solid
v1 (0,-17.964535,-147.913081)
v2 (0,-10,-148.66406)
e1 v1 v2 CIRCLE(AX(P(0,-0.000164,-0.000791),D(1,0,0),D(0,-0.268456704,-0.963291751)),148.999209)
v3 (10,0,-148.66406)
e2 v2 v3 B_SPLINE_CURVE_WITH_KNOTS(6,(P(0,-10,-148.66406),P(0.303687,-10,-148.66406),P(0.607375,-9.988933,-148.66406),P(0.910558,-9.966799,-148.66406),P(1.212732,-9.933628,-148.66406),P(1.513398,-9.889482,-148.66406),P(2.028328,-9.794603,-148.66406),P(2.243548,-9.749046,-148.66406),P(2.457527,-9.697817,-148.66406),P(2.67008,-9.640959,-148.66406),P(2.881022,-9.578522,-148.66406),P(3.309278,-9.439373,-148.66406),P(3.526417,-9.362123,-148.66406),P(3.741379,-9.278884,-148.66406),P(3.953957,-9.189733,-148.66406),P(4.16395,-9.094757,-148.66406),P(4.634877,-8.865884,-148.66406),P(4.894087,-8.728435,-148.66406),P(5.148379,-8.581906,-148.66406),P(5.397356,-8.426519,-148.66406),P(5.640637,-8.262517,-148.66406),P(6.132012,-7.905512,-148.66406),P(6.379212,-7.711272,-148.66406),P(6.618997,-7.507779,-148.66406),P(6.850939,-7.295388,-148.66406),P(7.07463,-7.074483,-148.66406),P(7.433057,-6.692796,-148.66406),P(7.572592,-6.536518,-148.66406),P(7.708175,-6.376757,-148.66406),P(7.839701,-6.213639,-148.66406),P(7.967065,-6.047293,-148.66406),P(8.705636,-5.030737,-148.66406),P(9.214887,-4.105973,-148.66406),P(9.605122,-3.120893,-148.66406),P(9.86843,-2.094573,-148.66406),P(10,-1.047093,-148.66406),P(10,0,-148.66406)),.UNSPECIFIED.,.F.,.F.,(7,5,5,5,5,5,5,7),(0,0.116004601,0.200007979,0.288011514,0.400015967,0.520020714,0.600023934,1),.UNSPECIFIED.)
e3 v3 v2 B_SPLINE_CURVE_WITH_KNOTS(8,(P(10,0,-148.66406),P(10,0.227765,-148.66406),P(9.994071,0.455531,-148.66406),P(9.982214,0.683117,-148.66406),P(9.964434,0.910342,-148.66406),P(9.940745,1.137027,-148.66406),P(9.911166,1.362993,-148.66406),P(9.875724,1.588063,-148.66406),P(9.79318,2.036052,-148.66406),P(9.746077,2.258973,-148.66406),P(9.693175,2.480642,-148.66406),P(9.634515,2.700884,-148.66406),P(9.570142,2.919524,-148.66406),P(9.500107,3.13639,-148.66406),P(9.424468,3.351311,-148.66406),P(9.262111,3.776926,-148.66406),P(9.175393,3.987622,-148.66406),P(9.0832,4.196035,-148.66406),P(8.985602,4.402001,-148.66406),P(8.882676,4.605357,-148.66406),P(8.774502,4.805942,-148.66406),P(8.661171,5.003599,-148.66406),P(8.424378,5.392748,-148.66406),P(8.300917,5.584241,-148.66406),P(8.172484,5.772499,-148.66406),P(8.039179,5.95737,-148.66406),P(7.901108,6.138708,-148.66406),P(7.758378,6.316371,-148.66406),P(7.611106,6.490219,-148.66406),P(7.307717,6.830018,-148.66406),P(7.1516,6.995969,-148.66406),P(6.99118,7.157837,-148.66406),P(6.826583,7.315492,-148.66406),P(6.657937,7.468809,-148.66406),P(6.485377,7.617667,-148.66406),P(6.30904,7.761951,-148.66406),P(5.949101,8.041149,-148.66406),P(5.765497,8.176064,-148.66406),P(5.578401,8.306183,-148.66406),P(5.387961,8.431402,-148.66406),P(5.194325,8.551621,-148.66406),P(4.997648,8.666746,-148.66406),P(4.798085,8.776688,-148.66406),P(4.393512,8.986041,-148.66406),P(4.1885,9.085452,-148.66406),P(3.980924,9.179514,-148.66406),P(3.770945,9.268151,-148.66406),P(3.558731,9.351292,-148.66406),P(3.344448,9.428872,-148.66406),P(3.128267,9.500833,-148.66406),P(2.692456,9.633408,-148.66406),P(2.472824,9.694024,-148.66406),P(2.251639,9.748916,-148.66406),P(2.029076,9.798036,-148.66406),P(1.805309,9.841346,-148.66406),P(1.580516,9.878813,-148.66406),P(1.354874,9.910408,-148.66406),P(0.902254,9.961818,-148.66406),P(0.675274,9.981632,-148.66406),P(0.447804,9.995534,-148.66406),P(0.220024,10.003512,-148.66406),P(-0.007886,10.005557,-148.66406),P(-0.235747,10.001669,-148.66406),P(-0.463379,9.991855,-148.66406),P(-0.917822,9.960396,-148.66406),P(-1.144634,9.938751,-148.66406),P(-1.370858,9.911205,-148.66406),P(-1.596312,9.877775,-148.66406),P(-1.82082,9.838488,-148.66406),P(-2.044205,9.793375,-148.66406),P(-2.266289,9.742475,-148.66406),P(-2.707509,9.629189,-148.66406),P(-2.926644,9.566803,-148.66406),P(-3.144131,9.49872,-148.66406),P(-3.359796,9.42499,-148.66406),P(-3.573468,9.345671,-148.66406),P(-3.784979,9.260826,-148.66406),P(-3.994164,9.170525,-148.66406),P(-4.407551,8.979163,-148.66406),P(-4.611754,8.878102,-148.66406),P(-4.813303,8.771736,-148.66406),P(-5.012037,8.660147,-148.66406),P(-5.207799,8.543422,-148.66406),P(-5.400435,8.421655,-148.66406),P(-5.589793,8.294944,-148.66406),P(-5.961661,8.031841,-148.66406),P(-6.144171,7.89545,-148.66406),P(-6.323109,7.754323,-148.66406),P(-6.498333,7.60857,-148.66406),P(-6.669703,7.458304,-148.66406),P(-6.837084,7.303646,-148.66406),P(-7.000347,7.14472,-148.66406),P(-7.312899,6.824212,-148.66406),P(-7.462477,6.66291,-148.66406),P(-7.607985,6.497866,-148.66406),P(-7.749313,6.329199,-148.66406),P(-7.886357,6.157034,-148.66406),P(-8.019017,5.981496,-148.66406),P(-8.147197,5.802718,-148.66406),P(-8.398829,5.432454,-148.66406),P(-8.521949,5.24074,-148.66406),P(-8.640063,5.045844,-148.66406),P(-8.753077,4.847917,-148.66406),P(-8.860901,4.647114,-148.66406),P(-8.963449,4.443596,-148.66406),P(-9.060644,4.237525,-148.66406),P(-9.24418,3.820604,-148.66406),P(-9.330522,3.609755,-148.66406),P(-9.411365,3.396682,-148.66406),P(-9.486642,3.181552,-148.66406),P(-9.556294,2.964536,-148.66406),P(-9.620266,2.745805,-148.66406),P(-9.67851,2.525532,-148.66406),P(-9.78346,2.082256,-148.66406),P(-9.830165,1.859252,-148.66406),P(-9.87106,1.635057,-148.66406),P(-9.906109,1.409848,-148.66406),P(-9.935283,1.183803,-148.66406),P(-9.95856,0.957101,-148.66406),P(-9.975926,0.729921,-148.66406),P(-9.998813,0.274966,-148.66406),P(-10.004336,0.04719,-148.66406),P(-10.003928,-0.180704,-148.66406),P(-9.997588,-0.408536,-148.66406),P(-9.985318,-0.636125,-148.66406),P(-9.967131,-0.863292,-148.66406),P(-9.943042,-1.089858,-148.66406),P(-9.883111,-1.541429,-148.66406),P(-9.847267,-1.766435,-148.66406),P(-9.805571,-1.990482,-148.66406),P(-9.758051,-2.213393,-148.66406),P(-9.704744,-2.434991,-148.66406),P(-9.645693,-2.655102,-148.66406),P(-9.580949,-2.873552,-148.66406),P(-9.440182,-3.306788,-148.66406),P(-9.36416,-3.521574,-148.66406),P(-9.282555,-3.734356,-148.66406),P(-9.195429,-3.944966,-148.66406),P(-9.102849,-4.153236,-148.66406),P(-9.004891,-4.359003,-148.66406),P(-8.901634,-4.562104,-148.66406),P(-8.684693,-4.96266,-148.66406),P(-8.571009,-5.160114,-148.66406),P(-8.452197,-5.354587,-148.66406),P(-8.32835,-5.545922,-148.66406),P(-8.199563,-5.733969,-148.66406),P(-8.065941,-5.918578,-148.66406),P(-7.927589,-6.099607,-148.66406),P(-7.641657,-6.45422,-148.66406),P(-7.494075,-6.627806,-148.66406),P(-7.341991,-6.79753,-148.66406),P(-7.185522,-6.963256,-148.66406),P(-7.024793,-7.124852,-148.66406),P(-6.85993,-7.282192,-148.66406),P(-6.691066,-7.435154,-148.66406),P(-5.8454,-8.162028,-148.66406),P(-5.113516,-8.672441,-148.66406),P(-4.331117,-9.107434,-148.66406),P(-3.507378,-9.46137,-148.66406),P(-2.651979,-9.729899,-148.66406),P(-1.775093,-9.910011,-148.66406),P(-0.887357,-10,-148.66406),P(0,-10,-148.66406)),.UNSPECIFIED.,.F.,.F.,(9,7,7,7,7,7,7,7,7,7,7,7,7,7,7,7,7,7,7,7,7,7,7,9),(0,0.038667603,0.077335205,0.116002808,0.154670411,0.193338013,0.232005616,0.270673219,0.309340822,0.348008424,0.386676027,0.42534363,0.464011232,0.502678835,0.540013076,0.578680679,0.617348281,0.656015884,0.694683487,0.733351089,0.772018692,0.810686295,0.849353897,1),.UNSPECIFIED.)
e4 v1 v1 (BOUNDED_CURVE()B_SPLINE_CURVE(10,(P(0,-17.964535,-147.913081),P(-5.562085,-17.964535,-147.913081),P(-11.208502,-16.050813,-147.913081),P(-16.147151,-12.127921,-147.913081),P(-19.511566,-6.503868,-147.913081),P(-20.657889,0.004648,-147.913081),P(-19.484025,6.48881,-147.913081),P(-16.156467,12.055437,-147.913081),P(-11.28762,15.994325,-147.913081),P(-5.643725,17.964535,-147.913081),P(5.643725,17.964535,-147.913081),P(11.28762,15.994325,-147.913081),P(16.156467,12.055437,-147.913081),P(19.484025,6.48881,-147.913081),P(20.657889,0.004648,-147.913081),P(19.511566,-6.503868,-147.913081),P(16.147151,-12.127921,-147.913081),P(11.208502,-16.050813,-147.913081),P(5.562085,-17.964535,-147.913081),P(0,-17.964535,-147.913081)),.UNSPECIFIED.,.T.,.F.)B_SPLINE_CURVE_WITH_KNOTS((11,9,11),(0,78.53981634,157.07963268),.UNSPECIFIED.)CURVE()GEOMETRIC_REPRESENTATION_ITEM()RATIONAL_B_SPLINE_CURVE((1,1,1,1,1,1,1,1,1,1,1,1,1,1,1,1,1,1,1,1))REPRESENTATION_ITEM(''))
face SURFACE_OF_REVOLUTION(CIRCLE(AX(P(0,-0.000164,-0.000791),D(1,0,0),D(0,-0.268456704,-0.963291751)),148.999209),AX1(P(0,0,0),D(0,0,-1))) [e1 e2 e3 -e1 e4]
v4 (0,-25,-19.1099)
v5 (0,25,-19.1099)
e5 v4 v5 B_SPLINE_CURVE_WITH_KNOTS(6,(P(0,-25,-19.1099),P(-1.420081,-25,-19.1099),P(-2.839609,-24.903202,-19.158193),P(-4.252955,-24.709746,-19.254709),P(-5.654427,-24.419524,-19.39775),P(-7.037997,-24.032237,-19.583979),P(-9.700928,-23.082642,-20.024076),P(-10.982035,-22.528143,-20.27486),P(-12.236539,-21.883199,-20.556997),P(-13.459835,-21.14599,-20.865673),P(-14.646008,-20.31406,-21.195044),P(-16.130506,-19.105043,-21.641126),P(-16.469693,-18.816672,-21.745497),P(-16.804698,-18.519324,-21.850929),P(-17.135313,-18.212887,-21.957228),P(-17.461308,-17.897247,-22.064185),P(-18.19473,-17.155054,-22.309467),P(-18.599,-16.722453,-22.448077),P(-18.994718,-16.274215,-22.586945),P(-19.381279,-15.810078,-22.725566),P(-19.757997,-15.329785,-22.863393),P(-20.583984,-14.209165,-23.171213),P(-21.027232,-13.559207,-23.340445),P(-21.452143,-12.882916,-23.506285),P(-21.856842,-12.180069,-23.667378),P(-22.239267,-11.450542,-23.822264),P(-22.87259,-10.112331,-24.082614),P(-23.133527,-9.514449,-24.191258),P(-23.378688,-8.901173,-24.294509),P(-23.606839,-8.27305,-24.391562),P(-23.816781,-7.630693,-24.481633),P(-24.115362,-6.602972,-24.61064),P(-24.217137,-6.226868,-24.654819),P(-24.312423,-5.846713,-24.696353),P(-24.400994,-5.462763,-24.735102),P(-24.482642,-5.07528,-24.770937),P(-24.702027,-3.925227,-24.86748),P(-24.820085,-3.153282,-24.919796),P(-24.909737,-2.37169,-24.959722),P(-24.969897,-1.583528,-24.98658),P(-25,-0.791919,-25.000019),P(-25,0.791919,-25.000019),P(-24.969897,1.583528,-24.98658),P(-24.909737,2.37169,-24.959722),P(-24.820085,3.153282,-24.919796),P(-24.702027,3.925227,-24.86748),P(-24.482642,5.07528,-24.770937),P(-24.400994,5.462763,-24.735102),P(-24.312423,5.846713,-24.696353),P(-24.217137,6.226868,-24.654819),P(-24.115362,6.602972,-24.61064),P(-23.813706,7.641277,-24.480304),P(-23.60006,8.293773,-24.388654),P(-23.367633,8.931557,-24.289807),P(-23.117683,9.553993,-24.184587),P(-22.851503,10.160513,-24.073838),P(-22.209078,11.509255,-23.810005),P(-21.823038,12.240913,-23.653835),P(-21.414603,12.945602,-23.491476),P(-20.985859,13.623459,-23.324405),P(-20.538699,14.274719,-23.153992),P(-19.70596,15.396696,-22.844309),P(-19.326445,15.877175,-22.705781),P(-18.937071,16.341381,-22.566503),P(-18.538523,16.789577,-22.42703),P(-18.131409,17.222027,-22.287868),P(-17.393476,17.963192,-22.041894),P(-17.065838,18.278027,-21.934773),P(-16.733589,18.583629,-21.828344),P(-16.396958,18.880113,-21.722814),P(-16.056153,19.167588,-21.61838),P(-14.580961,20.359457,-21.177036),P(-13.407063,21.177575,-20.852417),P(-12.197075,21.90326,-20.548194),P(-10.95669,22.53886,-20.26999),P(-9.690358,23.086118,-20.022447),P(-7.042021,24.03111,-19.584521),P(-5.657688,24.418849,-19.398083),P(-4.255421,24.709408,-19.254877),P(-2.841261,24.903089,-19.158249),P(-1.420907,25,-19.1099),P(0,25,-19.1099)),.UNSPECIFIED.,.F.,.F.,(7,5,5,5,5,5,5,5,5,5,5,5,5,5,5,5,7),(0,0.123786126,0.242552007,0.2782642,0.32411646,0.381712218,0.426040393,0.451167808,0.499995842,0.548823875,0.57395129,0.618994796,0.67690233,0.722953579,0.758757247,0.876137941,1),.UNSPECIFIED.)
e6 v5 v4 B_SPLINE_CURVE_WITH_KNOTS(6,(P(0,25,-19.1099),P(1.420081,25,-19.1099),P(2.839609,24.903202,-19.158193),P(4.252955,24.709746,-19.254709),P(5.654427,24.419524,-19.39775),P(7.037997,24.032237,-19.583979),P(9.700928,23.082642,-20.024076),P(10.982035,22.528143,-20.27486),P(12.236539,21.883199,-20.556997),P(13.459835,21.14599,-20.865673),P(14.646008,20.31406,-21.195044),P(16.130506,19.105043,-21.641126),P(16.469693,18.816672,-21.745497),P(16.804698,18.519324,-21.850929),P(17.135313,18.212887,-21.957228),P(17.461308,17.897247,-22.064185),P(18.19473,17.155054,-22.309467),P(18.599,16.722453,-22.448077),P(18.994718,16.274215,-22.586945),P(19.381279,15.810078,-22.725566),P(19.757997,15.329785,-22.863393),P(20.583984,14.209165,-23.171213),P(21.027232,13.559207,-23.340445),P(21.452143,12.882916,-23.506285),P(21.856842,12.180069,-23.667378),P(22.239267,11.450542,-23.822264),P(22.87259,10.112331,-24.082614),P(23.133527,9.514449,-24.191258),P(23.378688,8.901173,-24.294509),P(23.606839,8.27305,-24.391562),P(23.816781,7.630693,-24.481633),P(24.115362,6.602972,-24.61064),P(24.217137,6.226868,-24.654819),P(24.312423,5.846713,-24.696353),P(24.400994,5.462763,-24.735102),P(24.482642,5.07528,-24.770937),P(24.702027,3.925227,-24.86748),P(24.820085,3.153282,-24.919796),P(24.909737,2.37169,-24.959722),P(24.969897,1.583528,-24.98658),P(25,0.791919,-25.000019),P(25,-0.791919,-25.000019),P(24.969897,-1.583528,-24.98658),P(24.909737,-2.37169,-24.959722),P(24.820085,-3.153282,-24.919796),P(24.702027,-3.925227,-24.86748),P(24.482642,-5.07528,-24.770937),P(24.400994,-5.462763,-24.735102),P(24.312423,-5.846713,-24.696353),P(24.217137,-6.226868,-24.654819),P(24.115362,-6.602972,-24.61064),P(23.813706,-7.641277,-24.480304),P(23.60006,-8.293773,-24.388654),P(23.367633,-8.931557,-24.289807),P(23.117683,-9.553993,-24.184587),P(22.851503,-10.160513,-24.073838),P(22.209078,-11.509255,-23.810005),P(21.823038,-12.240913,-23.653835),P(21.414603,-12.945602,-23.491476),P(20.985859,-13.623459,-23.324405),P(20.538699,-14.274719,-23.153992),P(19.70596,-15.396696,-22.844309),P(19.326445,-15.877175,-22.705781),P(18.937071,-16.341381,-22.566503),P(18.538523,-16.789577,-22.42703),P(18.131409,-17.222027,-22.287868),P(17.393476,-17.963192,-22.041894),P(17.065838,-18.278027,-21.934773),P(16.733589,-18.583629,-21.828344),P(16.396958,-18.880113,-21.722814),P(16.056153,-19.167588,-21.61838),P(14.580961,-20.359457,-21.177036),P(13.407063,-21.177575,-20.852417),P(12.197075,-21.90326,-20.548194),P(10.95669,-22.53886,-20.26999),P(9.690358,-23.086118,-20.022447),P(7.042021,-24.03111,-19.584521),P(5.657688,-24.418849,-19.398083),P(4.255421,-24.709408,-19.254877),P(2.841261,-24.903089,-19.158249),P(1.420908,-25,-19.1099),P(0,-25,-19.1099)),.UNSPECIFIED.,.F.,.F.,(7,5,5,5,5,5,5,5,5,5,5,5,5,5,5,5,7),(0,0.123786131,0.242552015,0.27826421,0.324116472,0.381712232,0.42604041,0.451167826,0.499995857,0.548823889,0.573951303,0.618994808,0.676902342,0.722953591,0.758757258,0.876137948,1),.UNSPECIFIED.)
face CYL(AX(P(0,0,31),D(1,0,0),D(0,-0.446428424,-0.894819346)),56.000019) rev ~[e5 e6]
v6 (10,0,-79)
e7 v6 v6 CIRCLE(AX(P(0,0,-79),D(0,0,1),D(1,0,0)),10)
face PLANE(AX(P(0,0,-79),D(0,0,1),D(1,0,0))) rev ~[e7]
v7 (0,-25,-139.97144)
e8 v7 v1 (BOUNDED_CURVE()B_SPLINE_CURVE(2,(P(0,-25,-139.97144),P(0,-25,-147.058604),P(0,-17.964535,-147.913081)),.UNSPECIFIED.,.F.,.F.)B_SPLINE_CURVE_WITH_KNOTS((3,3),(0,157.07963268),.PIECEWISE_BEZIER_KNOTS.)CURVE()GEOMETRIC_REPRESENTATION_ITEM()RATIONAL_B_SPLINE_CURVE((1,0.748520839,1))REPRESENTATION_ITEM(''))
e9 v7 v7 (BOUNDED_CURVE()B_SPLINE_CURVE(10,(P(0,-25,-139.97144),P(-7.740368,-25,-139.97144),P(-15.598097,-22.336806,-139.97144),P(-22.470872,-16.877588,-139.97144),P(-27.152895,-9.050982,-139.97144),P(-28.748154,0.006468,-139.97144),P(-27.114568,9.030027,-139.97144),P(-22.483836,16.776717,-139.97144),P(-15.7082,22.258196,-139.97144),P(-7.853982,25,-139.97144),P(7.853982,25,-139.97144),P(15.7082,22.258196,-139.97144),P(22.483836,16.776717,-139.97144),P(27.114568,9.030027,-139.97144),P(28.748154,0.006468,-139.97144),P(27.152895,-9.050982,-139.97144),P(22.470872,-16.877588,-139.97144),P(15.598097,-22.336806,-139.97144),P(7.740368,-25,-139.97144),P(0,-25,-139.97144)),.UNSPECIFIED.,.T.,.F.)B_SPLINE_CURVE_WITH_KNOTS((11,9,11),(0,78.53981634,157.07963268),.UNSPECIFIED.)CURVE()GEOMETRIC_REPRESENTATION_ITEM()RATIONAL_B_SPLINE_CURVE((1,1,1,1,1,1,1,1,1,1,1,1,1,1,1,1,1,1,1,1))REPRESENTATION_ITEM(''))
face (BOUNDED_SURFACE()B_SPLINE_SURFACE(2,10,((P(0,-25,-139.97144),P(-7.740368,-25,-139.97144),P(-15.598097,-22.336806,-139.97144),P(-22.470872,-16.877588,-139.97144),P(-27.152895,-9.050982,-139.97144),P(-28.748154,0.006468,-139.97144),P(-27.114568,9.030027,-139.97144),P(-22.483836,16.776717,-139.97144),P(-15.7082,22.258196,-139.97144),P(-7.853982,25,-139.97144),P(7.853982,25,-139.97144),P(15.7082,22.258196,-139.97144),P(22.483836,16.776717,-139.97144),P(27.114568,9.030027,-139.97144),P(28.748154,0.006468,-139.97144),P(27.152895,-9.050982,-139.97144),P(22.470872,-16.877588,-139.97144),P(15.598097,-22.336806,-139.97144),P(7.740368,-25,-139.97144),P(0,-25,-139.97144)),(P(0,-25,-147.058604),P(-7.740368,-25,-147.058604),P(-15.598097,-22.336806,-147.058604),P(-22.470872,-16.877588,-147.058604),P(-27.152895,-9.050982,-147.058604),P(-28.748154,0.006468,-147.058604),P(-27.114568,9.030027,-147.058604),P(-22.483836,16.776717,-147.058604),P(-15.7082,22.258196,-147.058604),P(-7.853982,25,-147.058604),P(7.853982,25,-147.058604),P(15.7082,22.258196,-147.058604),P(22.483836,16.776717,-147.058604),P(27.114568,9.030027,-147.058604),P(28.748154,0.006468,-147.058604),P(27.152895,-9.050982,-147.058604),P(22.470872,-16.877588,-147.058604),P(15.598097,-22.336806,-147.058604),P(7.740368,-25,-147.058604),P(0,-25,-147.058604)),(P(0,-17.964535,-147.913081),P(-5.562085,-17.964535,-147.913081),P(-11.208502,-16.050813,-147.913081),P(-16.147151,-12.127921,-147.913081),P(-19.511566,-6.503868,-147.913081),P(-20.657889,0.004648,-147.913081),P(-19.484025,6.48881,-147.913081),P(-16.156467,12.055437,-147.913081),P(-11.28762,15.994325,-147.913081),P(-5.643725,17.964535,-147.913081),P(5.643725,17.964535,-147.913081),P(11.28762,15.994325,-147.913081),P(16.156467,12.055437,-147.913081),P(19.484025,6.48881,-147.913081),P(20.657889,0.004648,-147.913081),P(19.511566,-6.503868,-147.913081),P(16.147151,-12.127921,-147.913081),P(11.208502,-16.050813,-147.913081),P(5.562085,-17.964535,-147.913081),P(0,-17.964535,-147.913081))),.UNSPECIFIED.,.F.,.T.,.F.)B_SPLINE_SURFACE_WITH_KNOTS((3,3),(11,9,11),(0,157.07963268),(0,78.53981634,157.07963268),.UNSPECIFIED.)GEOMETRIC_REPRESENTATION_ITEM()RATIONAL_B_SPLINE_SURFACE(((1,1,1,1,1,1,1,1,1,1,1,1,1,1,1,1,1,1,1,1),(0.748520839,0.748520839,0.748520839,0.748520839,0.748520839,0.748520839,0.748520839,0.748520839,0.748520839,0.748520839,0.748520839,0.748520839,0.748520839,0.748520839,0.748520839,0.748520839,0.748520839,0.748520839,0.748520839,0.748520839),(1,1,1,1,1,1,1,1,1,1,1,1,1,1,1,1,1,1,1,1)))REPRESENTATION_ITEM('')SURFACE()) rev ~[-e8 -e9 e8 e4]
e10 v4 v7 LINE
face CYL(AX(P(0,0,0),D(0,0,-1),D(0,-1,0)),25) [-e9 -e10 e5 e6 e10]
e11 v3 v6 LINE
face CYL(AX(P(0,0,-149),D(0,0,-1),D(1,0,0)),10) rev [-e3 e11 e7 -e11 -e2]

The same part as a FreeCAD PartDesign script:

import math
import FreeCAD as App
import Part
import Sketcher
Q = App.Units.Quantity


def edges_at(feature, points):
    """Names of the edges that pass closest to the given points."""
    edges = feature.Shape.Edges
    near = lambda p: min(range(len(edges)), key=lambda i: edges[i].distToShape(Part.Vertex(*p))[0])
    return sorted({f"Edge{near(p) + 1}" for p in points})

doc = App.newDocument("Part")
body = doc.addObject("PartDesign::Body", "Body")

sketch1 = body.newObject("Sketcher::SketchObject", "Sketch")
sketch1.AttachmentSupport = (doc.getObject("YZ_Plane"), [""])
sketch1.MapMode = "FlatFace"
sketch1.addGeometry([
    Part.LineSegment(App.Vector(0, 0, 0), App.Vector(-25, 0, 0)),
    Part.LineSegment(App.Vector(-25, 0, 0), App.Vector(-25, -147, 0)),
    Part.ArcOfCircle(Part.Circle(App.Vector(0, 0, 0), App.Vector(0, 0, 1), 149), math.radians(-99.66), math.radians(-90)),
    Part.LineSegment(App.Vector(0, -149, 0), App.Vector(0, 0, 0)),
], False)
sketch1.addConstraint([
    Sketcher.Constraint("Coincident", 0, 2, 1, 1),
    Sketcher.Constraint("Coincident", 1, 2, 2, 1),
    Sketcher.Constraint("Coincident", 2, 2, 3, 1),
    Sketcher.Constraint("Coincident", 3, 2, 0, 1),
    Sketcher.Constraint("Horizontal", 0),
    Sketcher.Constraint("Vertical", 1),
    Sketcher.Constraint("Vertical", 3),
    Sketcher.Constraint("Coincident", 2, 3, -1, 1),
    Sketcher.Constraint("Coincident", 3, 2, -1, 1),
    Sketcher.Constraint("Radius", 2, Q("149 mm")),
    Sketcher.Constraint("DistanceX", 0, 2, 0, 1, Q("25 mm")),
])
revolution = body.newObject("PartDesign::Revolution", "Revolution")
revolution.Profile = sketch1
revolution.ReferenceAxis = (sketch1, ["V_Axis"])
revolution.Angle = 360

sketch2 = body.newObject("Sketcher::SketchObject", "Sketch001")
sketch2.AttachmentSupport = (doc.getObject("YZ_Plane"), [""])
sketch2.MapMode = "FlatFace"
sketch2.addGeometry([
    Part.ArcOfCircle(Part.Circle(App.Vector(0, 0, 0), App.Vector(0, 0, 1), 25), math.radians(0), math.radians(180)),
    Part.LineSegment(App.Vector(-25, 0, 0), App.Vector(-25, -19, 0)),
    Part.ArcOfCircle(Part.Circle(App.Vector(0, 31, 0), App.Vector(0, 0, 1), 56), math.radians(-117), math.radians(-63)),
    Part.LineSegment(App.Vector(25, -19, 0), App.Vector(25, 0, 0)),
], False)
sketch2.addConstraint([
    Sketcher.Constraint("Tangent", 0, 2, 1, 1),
    Sketcher.Constraint("Coincident", 1, 2, 2, 1),
    Sketcher.Constraint("Coincident", 2, 2, 3, 1),
    Sketcher.Constraint("Tangent", 3, 2, 0, 1),
    Sketcher.Constraint("Vertical", 1),
    Sketcher.Constraint("Vertical", 3),
    Sketcher.Constraint("Coincident", 0, 3, -1, 1),
    Sketcher.Constraint("PointOnObject", 2, 3, -2),
    Sketcher.Constraint("Radius", 0, Q("25 mm")),
    Sketcher.Constraint("Radius", 2, Q("56 mm")),
    Sketcher.Constraint("DistanceY", -1, 1, 2, 3, Q("31 mm")),
])
pocket1 = body.newObject("PartDesign::Pocket", "Pocket")
pocket1.Profile = sketch2
pocket1.Type = "ThroughAll"
pocket1.Midplane = True

sketch3 = body.newObject("Sketcher::SketchObject", "Sketch002")
sketch3.AttachmentSupport = (doc.getObject("XY_Plane"), [""])
sketch3.MapMode = "FlatFace"
sketch3.AttachmentOffset = App.Placement(App.Vector(0, 0, -149), App.Rotation())
sketch3.addGeometry(Part.Circle(App.Vector(0, 0, 0), App.Vector(0, 0, 1), 10), False)
sketch3.addConstraint([
    Sketcher.Constraint("Coincident", 0, 3, -1, 1),
    Sketcher.Constraint("Diameter", 0, Q("20 mm")),
])
pocket2 = body.newObject("PartDesign::Pocket", "Pocket001")
pocket2.Profile = sketch3
pocket2.Length = 70
pocket2.Reversed = True
doc.recompute()

fillet = body.newObject("PartDesign::Fillet", "Fillet")
fillet.Base = (pocket2, edges_at(pocket2, [(0, 25, -146.888)]))
fillet.Radius = 8

doc.recompute()
